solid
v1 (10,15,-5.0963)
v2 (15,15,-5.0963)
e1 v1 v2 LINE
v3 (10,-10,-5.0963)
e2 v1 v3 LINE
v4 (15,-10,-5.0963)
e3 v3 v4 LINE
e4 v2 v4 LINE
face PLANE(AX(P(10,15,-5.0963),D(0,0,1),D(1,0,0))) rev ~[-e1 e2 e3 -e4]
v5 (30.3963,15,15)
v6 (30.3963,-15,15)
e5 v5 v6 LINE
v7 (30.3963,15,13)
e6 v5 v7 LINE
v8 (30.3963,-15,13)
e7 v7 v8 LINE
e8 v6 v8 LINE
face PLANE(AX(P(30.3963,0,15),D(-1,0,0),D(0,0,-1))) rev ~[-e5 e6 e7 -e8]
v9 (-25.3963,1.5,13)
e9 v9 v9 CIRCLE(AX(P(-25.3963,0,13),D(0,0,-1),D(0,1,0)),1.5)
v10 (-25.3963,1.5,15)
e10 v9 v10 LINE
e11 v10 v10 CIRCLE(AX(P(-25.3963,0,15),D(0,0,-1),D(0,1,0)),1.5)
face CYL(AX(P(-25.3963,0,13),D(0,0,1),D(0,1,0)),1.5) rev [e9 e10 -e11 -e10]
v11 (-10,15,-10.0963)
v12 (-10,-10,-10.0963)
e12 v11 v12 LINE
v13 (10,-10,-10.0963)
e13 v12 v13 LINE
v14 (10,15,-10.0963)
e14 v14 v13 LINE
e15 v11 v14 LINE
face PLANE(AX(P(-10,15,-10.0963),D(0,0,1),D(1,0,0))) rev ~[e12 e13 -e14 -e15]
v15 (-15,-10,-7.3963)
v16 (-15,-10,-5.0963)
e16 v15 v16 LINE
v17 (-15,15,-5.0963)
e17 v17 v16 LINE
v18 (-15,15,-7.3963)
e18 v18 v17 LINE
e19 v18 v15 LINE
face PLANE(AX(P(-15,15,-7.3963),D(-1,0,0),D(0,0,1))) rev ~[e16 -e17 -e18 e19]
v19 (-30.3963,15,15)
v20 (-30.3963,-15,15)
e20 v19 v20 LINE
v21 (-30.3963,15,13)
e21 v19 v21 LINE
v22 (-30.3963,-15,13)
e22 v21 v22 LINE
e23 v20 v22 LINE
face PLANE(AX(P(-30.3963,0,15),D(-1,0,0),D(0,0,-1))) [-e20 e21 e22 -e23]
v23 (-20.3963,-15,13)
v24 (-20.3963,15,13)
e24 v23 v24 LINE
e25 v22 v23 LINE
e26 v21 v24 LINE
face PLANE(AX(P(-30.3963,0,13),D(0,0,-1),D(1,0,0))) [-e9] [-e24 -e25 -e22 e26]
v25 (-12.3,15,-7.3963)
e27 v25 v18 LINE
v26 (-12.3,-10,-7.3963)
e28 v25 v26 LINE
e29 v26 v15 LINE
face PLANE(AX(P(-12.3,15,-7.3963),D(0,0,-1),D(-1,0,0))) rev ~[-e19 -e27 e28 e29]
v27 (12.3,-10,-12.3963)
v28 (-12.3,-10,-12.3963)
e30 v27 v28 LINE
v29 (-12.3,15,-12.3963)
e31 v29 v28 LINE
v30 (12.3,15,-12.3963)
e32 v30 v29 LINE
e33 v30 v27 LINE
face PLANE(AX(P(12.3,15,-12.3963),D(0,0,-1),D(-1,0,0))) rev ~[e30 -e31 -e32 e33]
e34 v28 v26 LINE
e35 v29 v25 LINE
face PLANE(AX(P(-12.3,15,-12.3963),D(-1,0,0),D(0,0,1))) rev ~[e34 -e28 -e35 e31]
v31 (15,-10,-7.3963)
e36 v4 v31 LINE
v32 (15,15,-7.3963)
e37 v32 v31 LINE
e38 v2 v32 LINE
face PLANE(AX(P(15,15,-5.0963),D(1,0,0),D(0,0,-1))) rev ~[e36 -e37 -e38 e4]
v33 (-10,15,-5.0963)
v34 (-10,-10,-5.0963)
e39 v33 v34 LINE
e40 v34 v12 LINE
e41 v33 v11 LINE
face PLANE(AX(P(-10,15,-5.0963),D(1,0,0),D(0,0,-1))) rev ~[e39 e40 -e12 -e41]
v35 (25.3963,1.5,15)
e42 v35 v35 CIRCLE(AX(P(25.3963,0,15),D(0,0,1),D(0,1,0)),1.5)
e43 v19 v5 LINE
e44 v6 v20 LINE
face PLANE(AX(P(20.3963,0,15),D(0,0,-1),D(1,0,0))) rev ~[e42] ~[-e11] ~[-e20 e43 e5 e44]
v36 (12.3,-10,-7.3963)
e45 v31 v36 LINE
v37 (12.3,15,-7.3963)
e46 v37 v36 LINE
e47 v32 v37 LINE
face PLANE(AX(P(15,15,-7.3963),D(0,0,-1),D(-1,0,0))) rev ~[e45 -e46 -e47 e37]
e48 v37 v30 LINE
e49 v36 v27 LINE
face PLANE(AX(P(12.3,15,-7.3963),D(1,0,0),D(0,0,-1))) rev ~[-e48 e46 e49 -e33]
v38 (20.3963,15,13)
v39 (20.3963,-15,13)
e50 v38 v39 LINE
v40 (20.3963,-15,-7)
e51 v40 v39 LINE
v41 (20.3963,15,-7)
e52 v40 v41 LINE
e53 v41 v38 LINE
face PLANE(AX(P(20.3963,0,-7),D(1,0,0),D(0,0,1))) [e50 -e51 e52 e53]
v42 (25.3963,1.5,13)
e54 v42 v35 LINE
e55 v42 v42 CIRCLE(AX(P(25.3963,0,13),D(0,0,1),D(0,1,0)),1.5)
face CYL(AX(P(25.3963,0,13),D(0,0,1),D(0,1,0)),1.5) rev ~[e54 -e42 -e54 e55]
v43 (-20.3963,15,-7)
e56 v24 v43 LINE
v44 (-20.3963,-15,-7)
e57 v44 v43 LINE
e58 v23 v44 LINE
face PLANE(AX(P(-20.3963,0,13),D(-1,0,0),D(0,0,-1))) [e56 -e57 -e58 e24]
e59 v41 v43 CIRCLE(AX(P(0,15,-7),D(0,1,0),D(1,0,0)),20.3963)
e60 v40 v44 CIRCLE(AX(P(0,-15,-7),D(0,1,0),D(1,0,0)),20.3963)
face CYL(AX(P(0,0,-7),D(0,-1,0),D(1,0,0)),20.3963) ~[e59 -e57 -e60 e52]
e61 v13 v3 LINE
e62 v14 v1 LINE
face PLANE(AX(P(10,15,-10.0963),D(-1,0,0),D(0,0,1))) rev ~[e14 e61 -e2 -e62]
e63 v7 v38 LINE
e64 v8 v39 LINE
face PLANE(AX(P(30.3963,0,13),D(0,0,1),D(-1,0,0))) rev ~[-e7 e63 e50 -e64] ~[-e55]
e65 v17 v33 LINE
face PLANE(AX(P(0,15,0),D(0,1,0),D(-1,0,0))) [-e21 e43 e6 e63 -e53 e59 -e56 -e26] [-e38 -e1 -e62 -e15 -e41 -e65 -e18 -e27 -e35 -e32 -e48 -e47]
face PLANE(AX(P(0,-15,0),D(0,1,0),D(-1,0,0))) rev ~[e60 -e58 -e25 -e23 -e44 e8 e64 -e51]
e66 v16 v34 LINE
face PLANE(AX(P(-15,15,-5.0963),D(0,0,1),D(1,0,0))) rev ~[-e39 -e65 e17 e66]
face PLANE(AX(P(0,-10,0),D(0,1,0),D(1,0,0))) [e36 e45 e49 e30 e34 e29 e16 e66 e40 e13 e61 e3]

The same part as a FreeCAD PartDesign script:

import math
import FreeCAD as App
import Part
import Sketcher

V = App.Vector


def add_polygon(sketch, points):
    """Adds a closed chain of lines whose ends are joined by coincident constraints."""
    first, n = sketch.GeometryCount, len(points)
    for a, b in zip(points, points[1:] + points[:1]):
        sketch.addGeometry(Part.LineSegment(App.Vector(*a, 0), App.Vector(*b, 0)), False)
    for i in range(n):
        sketch.addConstraint(Sketcher.Constraint("Coincident", first + i, 2, first + (i + 1) % n, 1))

doc = App.newDocument("Part")
params = doc.addObject("Spreadsheet::Sheet", "Params")
for row, (alias, value) in enumerate([
    ("sketch1_width", "10 mm"),
    ("sketch1_height", "20 mm"),
    ("sketch1_height2", "2 mm"),
    ("pad1_length", "30 mm"),
    ("sketch2_width", "5 mm"),
    ("sketch2_width2", "20 mm"),
    ("sketch2_width3", "24.6 mm"),
    ("sketch2_height", "2.3 mm"),
    ("pocket1_length", "25 mm"),
    ("sketch3_diameter", "3 mm"),
    ("hole_diameter", "3 mm"),
    ("hole_depth", "2 mm"),
], start=1):
    params.set(f"A{row}", alias)
    params.set(f"B{row}", "=" + value)
    params.setAlias(f"B{row}", alias)

body = doc.addObject("PartDesign::Body", "Body")

# Sketch on XZ plane
sketch1 = body.newObject("Sketcher::SketchObject", "Sketch")
sketch1.AttachmentSupport = (doc.getObject("XZ_Plane"), [""])
sketch1.MapMode = "FlatFace"
sketch1.addGeometry([
    Part.LineSegment(V(20.4, 13, 0), V(20.4, -7, 0)),  # 0
    Part.ArcOfCircle(Part.Circle(V(0, -7, 0), V(0, 0, 1), 20.4), math.radians(180), math.radians(360)),  # 1
    Part.LineSegment(V(-20.4, -7, 0), V(-20.4, 13, 0)),  # 2
    Part.LineSegment(V(-20.4, 13, 0), V(-30.4, 13, 0)),  # 3
    Part.LineSegment(V(-30.4, 13, 0), V(-30.4, 15, 0)),  # 4
    Part.LineSegment(V(-30.4, 15, 0), V(30.4, 15, 0)),  # 5
    Part.LineSegment(V(30.4, 15, 0), V(30.4, 13, 0)),  # 6
    Part.LineSegment(V(30.4, 13, 0), V(20.4, 13, 0)),  # 7
], False)
sketch1.addConstraint([
    Sketcher.Constraint("Tangent", 0, 2, 1, 2),
    Sketcher.Constraint("Tangent", 1, 1, 2, 1),
    Sketcher.Constraint("Coincident", 2, 2, 3, 1),
    Sketcher.Constraint("Coincident", 3, 2, 4, 1),
    Sketcher.Constraint("Coincident", 4, 2, 5, 1),
    Sketcher.Constraint("Coincident", 5, 2, 6, 1),
    Sketcher.Constraint("Coincident", 6, 2, 7, 1),
    Sketcher.Constraint("Coincident", 7, 2, 0, 1),
    Sketcher.Constraint("Vertical", 0),
    Sketcher.Constraint("Vertical", 2),
    Sketcher.Constraint("Horizontal", 3),
    Sketcher.Constraint("Vertical", 4),
    Sketcher.Constraint("Horizontal", 5),
    Sketcher.Constraint("Vertical", 6),
    Sketcher.Constraint("Horizontal", 7),
    Sketcher.Constraint("Symmetric", 3, 2, 6, 2, -2),
    Sketcher.Constraint("PointOnObject", 1, 3, -2),
    Sketcher.Constraint("DistanceX", 3, 2, 3, 1, 10.0),
    Sketcher.Constraint("DistanceY", 0, 2, 0, 1, 20.0),
    Sketcher.Constraint("DistanceY", 4, 1, 4, 2, 2.0),
    Sketcher.Constraint("Radius", 1, 20.3963),
    Sketcher.Constraint("DistanceY", 1, 3, -1, 1, 7.0),
])
sketch1.setExpression("Constraints[17]", "Params.sketch1_width")
sketch1.setExpression("Constraints[18]", "Params.sketch1_height")
sketch1.setExpression("Constraints[19]", "Params.sketch1_height2")
pad1 = body.newObject("PartDesign::Pad", "Pad")
pad1.Profile = sketch1
pad1.setExpression("Length", "Params.pad1_length")
pad1.Midplane = True

# Sketch on XZ plane
sketch2 = body.newObject("Sketcher::SketchObject", "Sketch001")
sketch2.AttachmentSupport = (doc.getObject("XZ_Plane"), [""])
sketch2.MapMode = "FlatFace"
sketch2.AttachmentOffset = App.Placement(V(0, 0, -15), App.Rotation())
add_polygon(sketch2, [(-15, -7.4), (-15, -5.1), (-10, -5.1), (-10, -10.1), (10, -10.1), (10, -5.1), (15, -5.1), (15, -7.4), (12.3, -7.4), (12.3, -12.4), (-12.3, -12.4), (-12.3, -7.4)])  # lines 0-11
sketch2.addConstraint([
    Sketcher.Constraint("Vertical", 0),
    Sketcher.Constraint("Horizontal", 1),
    Sketcher.Constraint("Vertical", 2),
    Sketcher.Constraint("Horizontal", 3),
    Sketcher.Constraint("Vertical", 4),
    Sketcher.Constraint("Horizontal", 5),
    Sketcher.Constraint("Vertical", 6),
    Sketcher.Constraint("Horizontal", 7),
    Sketcher.Constraint("Vertical", 8),
    Sketcher.Constraint("Horizontal", 9),
    Sketcher.Constraint("Vertical", 10),
    Sketcher.Constraint("Horizontal", 11),
    Sketcher.Constraint("Symmetric", 1, 2, 4, 2, -2),
    Sketcher.Constraint("Symmetric", 7, 2, 10, 2, -2),
    Sketcher.Constraint("Equal", 1, 5),
    Sketcher.Constraint("Equal", 5, 2),
    Sketcher.Constraint("Equal", 4, 8),
    Sketcher.Constraint("DistanceX", 1, 1, 1, 2, 5.0),
    Sketcher.Constraint("DistanceX", 3, 1, 3, 2, 20.0),
    Sketcher.Constraint("DistanceX", 9, 2, 9, 1, 24.6),
    Sketcher.Constraint("DistanceY", 0, 1, 0, 2, 2.3),
    Sketcher.Constraint("DistanceY", 0, 2, -1, 1, 5.0963),
])
sketch2.setExpression("Constraints[29]", "Params.sketch2_width")
sketch2.setExpression("Constraints[30]", "Params.sketch2_width2")
sketch2.setExpression("Constraints[31]", "Params.sketch2_width3")
sketch2.setExpression("Constraints[32]", "Params.sketch2_height")
pocket1 = body.newObject("PartDesign::Pocket", "Pocket")
pocket1.Profile = sketch2
pocket1.setExpression("Length", "Params.pocket1_length")
pocket1.Reversed = True

# Sketch on XY plane
sketch3 = body.newObject("Sketcher::SketchObject", "Sketch002")
sketch3.AttachmentSupport = (doc.getObject("XY_Plane"), [""])
sketch3.MapMode = "FlatFace"
sketch3.AttachmentOffset = App.Placement(V(0, 0, 13), App.Rotation())
sketch3.addGeometry(Part.Circle(V(25.4, 0, 0), V(0, 0, 1), 1.5), False)
sketch3.addConstraint([
    Sketcher.Constraint("PointOnObject", 0, 3, -1),
    Sketcher.Constraint("Diameter", 0, 3.0),
    Sketcher.Constraint("DistanceX", -1, 1, 0, 3, 25.3963),
])
sketch3.setExpression("Constraints[1]", "Params.sketch3_diameter")
doc.recompute()
hole = body.newObject("PartDesign::Hole", "Hole")
hole.Profile = sketch3
hole.ThreadType = "None"
hole.setExpression("Diameter", "Params.hole_diameter")
hole.DepthType = "Dimension"
hole.setExpression("Depth", "Params.hole_depth")
hole.DrillPoint = "Flat"
hole.Reversed = True
doc.recompute()

mirrored = body.newObject("PartDesign::Mirrored", "Mirrored")
mirrored.Originals = [hole]
mirrored.MirrorPlane = (doc.getObject("YZ_Plane"), [""])
body.Tip = mirrored

doc.recompute()
